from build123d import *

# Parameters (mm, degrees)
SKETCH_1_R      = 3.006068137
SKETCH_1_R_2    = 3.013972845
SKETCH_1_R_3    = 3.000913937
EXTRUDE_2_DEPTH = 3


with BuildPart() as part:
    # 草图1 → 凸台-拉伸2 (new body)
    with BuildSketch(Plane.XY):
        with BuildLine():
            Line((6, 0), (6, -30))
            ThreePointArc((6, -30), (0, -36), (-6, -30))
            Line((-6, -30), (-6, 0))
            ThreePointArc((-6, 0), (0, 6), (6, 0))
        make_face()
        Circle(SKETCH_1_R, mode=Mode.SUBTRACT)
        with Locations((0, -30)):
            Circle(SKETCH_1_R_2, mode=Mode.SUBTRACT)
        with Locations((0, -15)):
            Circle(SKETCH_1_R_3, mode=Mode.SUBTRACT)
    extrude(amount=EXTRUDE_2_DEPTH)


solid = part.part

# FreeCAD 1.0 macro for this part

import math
import FreeCAD as App
import Part
import Sketcher

V = App.Vector

doc = App.newDocument("Part")
params = doc.addObject("Spreadsheet::Sheet", "Params")
for row, (alias, value) in enumerate([
    ("sketch1_radius", "6 mm"),
    ("sketch1_height", "30 mm"),
    ("pad1_length", "3 mm"),
], start=1):
    params.set(f"A{row}", alias)
    params.set(f"B{row}", "=" + value)
    params.setAlias(f"B{row}", alias)

body = doc.addObject("PartDesign::Body", "Body")

# Sketch on XY plane
sketch1 = body.newObject("Sketcher::SketchObject", "Sketch")
sketch1.AttachmentSupport = (doc.getObject("XY_Plane"), [""])
sketch1.MapMode = "FlatFace"
sketch1.addGeometry(Part.LineSegment(V(6, -30, 0), V(6, 0, 0)), False)
sketch1.addGeometry(Part.ArcOfCircle(Part.Circle(V(0, 0, 0), V(0, 0, 1), 6), math.radians(0), math.radians(180)), False)
sketch1.addGeometry(Part.LineSegment(V(-6, 0, 0), V(-6, -30, 0)), False)
sketch1.addGeometry(Part.ArcOfCircle(Part.Circle(V(0, -30, 0), V(0, 0, 1), 6), math.radians(180), math.radians(360)), False)
sketch1.addGeometry(Part.Circle(V(0, -30, 0), V(0, 0, 1), 3), False)
sketch1.addGeometry(Part.Circle(V(0, -15, 0), V(0, 0, 1), 3), False)
sketch1.addGeometry(Part.Circle(V(0, 0, 0), V(0, 0, 1), 3), False)
sketch1.addConstraint(Sketcher.Constraint("Tangent", 0, 2, 1, 1))
sketch1.addConstraint(Sketcher.Constraint("Tangent", 1, 2, 2, 1))
sketch1.addConstraint(Sketcher.Constraint("Tangent", 2, 2, 3, 1))
sketch1.addConstraint(Sketcher.Constraint("Tangent", 3, 2, 0, 1))
sketch1.addConstraint(Sketcher.Constraint("Vertical", 0))
sketch1.addConstraint(Sketcher.Constraint("Vertical", 2))
sketch1.addConstraint(Sketcher.Constraint("Coincident", 1, 3, -1, 1))
sketch1.addConstraint(Sketcher.Constraint("Coincident", 6, 3, -1, 1))
sketch1.addConstraint(Sketcher.Constraint("Coincident", 4, 3, 3, 3))
sketch1.addConstraint(Sketcher.Constraint("PointOnObject", 5, 3, -2))
sketch1.addConstraint(Sketcher.Constraint("Radius", 1, 6.0))
sketch1.addConstraint(Sketcher.Constraint("DistanceY", 0, 1, 0, 2, 30.0))
sketch1.addConstraint(Sketcher.Constraint("DistanceY", 5, 3, -1, 1, 15.0))
sketch1.addConstraint(Sketcher.Constraint("Diameter", 4, 6.027946))
sketch1.addConstraint(Sketcher.Constraint("Diameter", 5, 6.001828))
sketch1.addConstraint(Sketcher.Constraint("Diameter", 6, 6.012136))
sketch1.setExpression("Constraints[10]", "Params.sketch1_radius")
sketch1.setExpression("Constraints[11]", "Params.sketch1_height")
pad1 = body.newObject("PartDesign::Pad", "Pad")
pad1.Profile = sketch1
pad1.setExpression("Length", "Params.pad1_length")

doc.recompute()
